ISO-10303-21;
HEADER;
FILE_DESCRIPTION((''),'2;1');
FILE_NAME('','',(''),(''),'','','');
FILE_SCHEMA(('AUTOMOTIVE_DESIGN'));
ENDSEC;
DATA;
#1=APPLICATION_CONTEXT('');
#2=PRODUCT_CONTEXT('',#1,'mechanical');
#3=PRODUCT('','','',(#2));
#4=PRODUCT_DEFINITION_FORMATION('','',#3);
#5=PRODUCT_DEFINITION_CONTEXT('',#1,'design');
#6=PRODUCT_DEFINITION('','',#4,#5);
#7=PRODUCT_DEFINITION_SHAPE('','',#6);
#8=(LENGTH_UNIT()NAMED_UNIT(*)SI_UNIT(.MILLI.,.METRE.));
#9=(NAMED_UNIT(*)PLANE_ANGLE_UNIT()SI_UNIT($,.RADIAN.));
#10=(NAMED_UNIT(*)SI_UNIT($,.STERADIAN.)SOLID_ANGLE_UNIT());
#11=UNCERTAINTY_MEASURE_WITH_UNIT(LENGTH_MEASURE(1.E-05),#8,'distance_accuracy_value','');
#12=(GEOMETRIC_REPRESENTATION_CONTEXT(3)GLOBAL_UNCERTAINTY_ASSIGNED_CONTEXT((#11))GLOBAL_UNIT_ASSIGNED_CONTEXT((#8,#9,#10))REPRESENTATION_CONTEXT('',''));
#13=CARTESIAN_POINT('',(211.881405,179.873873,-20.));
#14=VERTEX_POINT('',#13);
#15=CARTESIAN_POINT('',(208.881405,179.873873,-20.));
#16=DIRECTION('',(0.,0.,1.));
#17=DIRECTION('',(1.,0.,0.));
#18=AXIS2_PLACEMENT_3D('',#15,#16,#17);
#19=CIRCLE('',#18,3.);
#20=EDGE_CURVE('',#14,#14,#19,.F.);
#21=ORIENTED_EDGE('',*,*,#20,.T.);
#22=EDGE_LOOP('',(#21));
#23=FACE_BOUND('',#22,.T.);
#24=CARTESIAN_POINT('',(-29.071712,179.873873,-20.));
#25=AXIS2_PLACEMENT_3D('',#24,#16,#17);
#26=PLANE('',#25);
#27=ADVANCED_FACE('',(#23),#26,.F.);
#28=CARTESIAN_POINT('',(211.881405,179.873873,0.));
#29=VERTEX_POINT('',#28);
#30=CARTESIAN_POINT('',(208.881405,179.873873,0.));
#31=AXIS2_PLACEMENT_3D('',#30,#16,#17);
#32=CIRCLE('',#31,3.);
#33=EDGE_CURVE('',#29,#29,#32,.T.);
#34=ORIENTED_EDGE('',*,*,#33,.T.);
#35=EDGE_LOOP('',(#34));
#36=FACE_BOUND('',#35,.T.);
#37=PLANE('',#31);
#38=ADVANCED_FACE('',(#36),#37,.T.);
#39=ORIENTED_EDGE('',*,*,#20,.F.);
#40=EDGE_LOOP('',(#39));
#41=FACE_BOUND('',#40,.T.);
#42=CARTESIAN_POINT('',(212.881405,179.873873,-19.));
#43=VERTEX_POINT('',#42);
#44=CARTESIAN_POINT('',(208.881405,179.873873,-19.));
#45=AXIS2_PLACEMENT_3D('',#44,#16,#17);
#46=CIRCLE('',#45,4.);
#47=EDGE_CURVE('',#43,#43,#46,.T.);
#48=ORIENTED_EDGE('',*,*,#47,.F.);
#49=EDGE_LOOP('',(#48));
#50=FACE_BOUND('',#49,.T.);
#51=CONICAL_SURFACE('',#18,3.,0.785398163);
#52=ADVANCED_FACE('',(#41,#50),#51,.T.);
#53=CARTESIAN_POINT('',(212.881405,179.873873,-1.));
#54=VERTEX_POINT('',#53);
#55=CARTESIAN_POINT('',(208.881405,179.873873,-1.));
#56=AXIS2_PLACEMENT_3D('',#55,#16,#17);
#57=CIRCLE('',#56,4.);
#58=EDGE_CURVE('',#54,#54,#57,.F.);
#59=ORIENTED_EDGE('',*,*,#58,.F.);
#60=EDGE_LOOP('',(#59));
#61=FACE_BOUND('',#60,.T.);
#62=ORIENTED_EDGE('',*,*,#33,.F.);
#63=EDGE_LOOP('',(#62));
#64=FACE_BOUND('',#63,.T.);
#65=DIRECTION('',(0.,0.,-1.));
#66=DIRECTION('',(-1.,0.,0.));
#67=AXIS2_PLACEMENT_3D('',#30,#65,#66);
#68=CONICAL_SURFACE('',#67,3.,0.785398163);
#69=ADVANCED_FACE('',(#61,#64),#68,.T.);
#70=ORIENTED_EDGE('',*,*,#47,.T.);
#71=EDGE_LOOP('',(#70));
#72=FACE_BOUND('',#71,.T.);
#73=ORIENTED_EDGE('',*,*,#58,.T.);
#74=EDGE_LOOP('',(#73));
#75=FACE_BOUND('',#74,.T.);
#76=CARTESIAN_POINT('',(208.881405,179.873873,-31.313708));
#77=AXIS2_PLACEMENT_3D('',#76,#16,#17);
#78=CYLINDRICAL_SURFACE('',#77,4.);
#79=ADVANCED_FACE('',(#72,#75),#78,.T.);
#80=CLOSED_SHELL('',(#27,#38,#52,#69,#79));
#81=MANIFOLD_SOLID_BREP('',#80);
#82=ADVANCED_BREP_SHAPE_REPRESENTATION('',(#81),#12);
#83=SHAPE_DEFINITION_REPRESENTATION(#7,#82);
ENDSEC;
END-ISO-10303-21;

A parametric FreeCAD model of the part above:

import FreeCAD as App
import Part
import Sketcher
from FreeCAD import Vector
Q = App.Units.Quantity


def edges_at(feature, points):
    """Names of the edges that pass closest to the given points."""
    edges = feature.Shape.Edges
    near = lambda p: min(range(len(edges)), key=lambda i: edges[i].distToShape(Part.Vertex(*p))[0])
    return sorted({f"Edge{near(p) + 1}" for p in points})

doc = App.newDocument("Part")
body = doc.addObject("PartDesign::Body", "Body")

sketch1 = doc.addObject("Sketcher::SketchObject", "Sketch")
body.addObject(sketch1)
sketch1.AttachmentSupport = (doc.XY_Plane, [""])
sketch1.MapMode = "FlatFace"
sketch1.addGeometry(Part.Circle(Vector(208.9, 179.9, 0), Vector(0, 0, 1), 4), False)
sketch1.addConstraint([
    Sketcher.Constraint("Diameter", 0, Q("8 mm")),
    Sketcher.Constraint("DistanceX", -1, 1, 0, 3, Q("208.881405 mm")),
    Sketcher.Constraint("DistanceY", -1, 1, 0, 3, Q("179.873873 mm")),
])
pad1 = doc.addObject("PartDesign::Pad", "Pad")
body.addObject(pad1)
pad1.Profile = sketch1
pad1.Length = 20
pad1.Reversed = True
doc.recompute()

chamfer = doc.addObject("PartDesign::Chamfer", "Chamfer")
body.addObject(chamfer)
chamfer.Base = (pad1, edges_at(pad1, [(204.881, 179.874, 0), (204.881, 179.874, -20)]))
chamfer.Size = 1

doc.recompute()
